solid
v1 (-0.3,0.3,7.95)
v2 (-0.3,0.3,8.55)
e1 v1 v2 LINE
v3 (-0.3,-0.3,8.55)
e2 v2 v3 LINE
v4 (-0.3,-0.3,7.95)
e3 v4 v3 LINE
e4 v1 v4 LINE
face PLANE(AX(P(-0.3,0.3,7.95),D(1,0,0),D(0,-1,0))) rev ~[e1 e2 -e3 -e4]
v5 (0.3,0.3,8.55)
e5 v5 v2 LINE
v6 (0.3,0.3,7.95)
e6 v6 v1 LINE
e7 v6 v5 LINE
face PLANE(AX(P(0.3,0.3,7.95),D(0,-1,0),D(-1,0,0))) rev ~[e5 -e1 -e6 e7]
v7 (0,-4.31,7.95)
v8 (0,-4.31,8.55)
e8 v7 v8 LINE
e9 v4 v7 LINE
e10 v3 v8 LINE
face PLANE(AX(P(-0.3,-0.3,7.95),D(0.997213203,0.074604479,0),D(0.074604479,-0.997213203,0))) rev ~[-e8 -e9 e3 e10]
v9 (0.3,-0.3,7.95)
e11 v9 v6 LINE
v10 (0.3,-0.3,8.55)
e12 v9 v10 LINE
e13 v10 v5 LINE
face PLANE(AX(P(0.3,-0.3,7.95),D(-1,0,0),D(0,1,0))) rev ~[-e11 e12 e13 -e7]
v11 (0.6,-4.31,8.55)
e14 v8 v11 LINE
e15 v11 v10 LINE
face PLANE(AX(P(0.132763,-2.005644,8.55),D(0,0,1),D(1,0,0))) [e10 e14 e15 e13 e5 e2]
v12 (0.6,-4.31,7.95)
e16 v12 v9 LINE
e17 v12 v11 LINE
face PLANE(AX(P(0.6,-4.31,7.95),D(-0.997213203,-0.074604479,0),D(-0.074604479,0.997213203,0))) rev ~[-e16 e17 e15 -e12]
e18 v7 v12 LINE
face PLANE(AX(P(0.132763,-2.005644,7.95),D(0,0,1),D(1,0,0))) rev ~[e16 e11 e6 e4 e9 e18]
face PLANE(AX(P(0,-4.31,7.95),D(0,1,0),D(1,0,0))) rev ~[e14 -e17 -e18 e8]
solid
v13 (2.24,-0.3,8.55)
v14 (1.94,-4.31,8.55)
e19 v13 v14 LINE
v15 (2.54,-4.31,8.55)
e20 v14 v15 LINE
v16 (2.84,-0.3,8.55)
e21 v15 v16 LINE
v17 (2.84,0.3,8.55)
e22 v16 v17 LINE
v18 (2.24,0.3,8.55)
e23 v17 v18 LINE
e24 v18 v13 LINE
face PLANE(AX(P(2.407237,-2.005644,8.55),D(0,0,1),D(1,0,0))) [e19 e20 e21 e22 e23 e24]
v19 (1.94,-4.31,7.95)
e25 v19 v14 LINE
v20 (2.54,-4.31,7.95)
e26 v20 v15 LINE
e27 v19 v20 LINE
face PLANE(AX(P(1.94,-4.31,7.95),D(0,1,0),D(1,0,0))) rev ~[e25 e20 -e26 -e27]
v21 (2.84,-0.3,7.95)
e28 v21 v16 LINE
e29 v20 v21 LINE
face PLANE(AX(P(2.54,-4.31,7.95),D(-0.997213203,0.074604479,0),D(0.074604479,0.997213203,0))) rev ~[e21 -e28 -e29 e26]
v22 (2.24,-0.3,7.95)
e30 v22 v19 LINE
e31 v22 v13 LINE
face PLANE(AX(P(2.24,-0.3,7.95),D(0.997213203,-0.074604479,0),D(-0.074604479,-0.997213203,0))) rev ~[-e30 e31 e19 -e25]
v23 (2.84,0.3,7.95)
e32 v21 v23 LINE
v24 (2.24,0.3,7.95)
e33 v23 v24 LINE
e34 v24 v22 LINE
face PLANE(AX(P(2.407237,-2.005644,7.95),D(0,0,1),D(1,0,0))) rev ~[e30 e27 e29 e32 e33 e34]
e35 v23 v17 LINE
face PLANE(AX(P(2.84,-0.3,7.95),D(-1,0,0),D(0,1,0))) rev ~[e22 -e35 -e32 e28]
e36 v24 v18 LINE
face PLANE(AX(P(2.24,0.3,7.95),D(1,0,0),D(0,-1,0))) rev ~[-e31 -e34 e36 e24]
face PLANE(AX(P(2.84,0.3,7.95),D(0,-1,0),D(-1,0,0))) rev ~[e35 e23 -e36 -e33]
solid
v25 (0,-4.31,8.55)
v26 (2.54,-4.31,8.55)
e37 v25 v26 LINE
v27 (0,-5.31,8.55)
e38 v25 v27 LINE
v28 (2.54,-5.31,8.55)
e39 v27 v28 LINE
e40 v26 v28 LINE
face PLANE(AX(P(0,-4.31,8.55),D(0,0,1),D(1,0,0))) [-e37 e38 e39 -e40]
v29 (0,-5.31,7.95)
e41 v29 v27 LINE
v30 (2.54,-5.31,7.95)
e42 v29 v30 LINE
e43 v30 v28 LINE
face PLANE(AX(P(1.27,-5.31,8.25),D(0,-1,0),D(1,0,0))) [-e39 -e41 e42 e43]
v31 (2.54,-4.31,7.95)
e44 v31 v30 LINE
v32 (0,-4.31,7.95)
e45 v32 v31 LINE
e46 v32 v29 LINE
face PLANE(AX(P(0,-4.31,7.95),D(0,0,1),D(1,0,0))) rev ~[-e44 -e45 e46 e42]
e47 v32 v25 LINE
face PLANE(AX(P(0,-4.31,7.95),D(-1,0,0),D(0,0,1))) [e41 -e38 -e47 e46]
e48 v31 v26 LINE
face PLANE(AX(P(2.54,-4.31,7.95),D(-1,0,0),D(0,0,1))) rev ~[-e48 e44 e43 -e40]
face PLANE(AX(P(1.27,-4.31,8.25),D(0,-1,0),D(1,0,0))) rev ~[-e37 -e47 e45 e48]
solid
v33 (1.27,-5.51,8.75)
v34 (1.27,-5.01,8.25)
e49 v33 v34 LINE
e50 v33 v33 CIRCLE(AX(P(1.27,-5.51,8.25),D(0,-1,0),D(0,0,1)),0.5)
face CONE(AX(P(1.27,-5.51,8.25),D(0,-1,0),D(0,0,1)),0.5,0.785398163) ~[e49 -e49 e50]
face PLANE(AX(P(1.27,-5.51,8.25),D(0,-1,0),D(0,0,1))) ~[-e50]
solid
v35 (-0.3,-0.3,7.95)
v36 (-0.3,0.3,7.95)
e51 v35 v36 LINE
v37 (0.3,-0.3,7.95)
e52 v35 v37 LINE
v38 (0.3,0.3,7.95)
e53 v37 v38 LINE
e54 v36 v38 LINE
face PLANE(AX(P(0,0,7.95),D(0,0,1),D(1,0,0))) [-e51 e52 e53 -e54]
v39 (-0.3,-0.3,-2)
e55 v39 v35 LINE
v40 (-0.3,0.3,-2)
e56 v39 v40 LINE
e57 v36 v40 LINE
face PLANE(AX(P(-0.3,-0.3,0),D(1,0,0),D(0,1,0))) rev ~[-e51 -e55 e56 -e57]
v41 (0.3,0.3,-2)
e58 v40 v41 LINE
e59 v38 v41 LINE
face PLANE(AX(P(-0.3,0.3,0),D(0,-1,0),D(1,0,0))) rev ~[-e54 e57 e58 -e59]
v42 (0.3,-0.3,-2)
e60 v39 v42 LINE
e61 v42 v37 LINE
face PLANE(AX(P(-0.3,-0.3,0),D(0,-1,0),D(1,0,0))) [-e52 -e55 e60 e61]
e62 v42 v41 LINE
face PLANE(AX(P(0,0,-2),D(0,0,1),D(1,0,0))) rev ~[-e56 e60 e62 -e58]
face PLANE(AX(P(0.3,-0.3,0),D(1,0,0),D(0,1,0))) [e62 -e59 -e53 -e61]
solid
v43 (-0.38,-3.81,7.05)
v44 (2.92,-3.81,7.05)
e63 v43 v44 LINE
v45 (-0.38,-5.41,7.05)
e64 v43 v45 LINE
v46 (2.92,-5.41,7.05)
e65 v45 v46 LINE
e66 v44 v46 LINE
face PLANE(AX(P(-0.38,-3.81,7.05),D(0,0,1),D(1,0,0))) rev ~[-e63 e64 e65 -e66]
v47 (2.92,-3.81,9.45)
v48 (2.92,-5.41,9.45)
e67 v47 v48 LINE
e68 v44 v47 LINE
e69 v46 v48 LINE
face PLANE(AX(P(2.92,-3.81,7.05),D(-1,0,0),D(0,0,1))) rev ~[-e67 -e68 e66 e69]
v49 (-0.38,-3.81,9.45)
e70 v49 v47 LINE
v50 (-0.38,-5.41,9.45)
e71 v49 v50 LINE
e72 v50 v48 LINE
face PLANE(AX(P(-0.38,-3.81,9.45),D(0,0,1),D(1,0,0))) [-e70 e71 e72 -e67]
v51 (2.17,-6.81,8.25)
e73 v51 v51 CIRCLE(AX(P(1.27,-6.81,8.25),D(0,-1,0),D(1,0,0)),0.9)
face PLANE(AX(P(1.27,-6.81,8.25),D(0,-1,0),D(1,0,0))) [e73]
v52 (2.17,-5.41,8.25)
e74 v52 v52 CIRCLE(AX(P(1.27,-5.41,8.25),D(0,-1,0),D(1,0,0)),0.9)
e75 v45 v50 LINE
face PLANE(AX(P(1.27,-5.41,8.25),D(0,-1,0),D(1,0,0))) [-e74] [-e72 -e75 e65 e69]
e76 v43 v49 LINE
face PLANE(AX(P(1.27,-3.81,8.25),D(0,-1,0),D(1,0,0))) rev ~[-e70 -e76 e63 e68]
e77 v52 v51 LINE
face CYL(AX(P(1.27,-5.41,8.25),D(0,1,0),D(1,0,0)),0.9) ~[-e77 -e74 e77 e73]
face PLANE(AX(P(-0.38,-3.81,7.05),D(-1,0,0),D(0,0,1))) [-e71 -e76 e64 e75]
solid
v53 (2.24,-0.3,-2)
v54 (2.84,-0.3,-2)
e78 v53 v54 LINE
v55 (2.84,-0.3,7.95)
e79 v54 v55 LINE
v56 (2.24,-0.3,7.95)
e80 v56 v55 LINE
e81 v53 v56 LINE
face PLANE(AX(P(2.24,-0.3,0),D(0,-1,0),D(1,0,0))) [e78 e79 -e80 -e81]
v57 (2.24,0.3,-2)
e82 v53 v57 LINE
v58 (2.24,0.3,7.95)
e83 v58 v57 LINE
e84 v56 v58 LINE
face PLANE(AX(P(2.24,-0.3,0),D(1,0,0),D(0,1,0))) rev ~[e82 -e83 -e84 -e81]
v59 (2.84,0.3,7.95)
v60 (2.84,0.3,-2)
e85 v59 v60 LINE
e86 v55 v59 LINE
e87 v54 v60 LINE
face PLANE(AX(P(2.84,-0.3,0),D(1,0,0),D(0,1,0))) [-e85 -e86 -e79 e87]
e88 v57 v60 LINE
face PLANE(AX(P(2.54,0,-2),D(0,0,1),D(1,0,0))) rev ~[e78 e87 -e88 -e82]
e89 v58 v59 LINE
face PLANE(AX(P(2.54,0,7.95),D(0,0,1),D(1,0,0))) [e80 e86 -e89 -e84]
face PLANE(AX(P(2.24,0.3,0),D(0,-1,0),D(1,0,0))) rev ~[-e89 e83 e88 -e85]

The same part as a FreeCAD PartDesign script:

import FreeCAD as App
import Part
import Sketcher

doc = App.newDocument("Part")
params = doc.addObject("Spreadsheet::Sheet", "Params")
for row, (alias, value) in enumerate([
    ("sketch1_width", "0.6 mm"),
    ("pad1_length", "7.95 mm"),
    ("pad1_length2", "2 mm"),
    ("sketch2_width", "0.6 mm"),
    ("pad2_length", "0.6 mm"),
    ("sketch3_height", "0.6 mm"),
    ("sketch3_width", "2.54 mm"),
    ("pad3_length", "1 mm"),
    ("sketch4_width", "0.5 mm"),
    ("revolution_angle", "360 deg"),
    ("sketch5_width", "3.3 mm"),
    ("sketch5_height", "2.4 mm"),
    ("pad4_length", "1.6 mm"),
    ("sketch6_diameter", "1.8 mm"),
    ("pad5_length", "1.4 mm"),
], start=1):
    params.set(f"A{row}", alias)
    params.set(f"B{row}", "=" + value)
    params.setAlias(f"B{row}", alias)

body = doc.addObject("PartDesign::Body", "Body")
body.AllowCompound = True

# Sketch on XY plane
sketch1 = body.newObject("Sketcher::SketchObject", "Sketch")
sketch1.AttachmentSupport = (doc.getObject("XY_Plane"), [""])
sketch1.MapMode = "FlatFace"
sketch1.addGeometry(Part.LineSegment(App.Vector(-0.3, 0.3, 0), App.Vector(-0.3, -0.3, 0)), False)
sketch1.addGeometry(Part.LineSegment(App.Vector(-0.3, -0.3, 0), App.Vector(0.3, -0.3, 0)), False)
sketch1.addGeometry(Part.LineSegment(App.Vector(0.3, -0.3, 0), App.Vector(0.3, 0.3, 0)), False)
sketch1.addGeometry(Part.LineSegment(App.Vector(0.3, 0.3, 0), App.Vector(-0.3, 0.3, 0)), False)
sketch1.addGeometry(Part.LineSegment(App.Vector(2.24, 0.3, 0), App.Vector(2.24, -0.3, 0)), False)
sketch1.addGeometry(Part.LineSegment(App.Vector(2.24, -0.3, 0), App.Vector(2.84, -0.3, 0)), False)
sketch1.addGeometry(Part.LineSegment(App.Vector(2.84, -0.3, 0), App.Vector(2.84, 0.3, 0)), False)
sketch1.addGeometry(Part.LineSegment(App.Vector(2.84, 0.3, 0), App.Vector(2.24, 0.3, 0)), False)
sketch1.addConstraint(Sketcher.Constraint("Coincident", 0, 2, 1, 1))
sketch1.addConstraint(Sketcher.Constraint("Coincident", 1, 2, 2, 1))
sketch1.addConstraint(Sketcher.Constraint("Coincident", 2, 2, 3, 1))
sketch1.addConstraint(Sketcher.Constraint("Coincident", 3, 2, 0, 1))
sketch1.addConstraint(Sketcher.Constraint("Coincident", 4, 2, 5, 1))
sketch1.addConstraint(Sketcher.Constraint("Coincident", 5, 2, 6, 1))
sketch1.addConstraint(Sketcher.Constraint("Coincident", 6, 2, 7, 1))
sketch1.addConstraint(Sketcher.Constraint("Coincident", 7, 2, 4, 1))
sketch1.addConstraint(Sketcher.Constraint("Vertical", 0))
sketch1.addConstraint(Sketcher.Constraint("Horizontal", 1))
sketch1.addConstraint(Sketcher.Constraint("Vertical", 2))
sketch1.addConstraint(Sketcher.Constraint("Horizontal", 3))
sketch1.addConstraint(Sketcher.Constraint("Vertical", 4))
sketch1.addConstraint(Sketcher.Constraint("Horizontal", 5))
sketch1.addConstraint(Sketcher.Constraint("Vertical", 6))
sketch1.addConstraint(Sketcher.Constraint("Horizontal", 7))
sketch1.addConstraint(Sketcher.Constraint("Symmetric", 0, 2, 2, 2, -1, 1))
sketch1.addConstraint(Sketcher.Constraint("Horizontal", 1, 2, 4, 2))
sketch1.addConstraint(Sketcher.Constraint("Horizontal", 3, 2, 6, 2))
sketch1.addConstraint(Sketcher.Constraint("Equal", 3, 5))
sketch1.addConstraint(Sketcher.Constraint("Equal", 7, 0))
sketch1.addConstraint(Sketcher.Constraint("DistanceX", 1, 1, 1, 2, 0.6))
sketch1.addConstraint(Sketcher.Constraint("DistanceX", -1, 1, 4, 2, 2.24))
sketch1.setExpression("Constraints[21]", "Params.sketch1_width")
pad1 = body.newObject("PartDesign::Pad", "Pad")
pad1.Profile = sketch1
pad1.Type = "TwoLengths"
pad1.setExpression("Length", "Params.pad1_length")
pad1.setExpression("Length2", "Params.pad1_length2")
body2 = doc.addObject("PartDesign::Body", "Body001")
body2.AllowCompound = True

# Sketch on XY plane
sketch2 = body2.newObject("Sketcher::SketchObject", "Sketch001")
sketch2.AttachmentSupport = (doc.getObject("XY_Plane001"), [""])
sketch2.MapMode = "FlatFace"
sketch2.AttachmentOffset = App.Placement(App.Vector(0, 0, 7.95), App.Rotation())
sketch2.addGeometry(Part.LineSegment(App.Vector(0.3, 0.3, 0), App.Vector(-0.3, 0.3, 0)), False)
sketch2.addGeometry(Part.LineSegment(App.Vector(-0.3, 0.3, 0), App.Vector(-0.3, -0.3, 0)), False)
sketch2.addGeometry(Part.LineSegment(App.Vector(-0.3, -0.3, 0), App.Vector(0, -4.31, 0)), False)
sketch2.addGeometry(Part.LineSegment(App.Vector(0, -4.31, 0), App.Vector(0.6, -4.31, 0)), False)
sketch2.addGeometry(Part.LineSegment(App.Vector(0.6, -4.31, 0), App.Vector(0.3, -0.3, 0)), False)
sketch2.addGeometry(Part.LineSegment(App.Vector(0.3, -0.3, 0), App.Vector(0.3, 0.3, 0)), False)
sketch2.addGeometry(Part.LineSegment(App.Vector(2.84, 0.3, 0), App.Vector(2.24, 0.3, 0)), False)
sketch2.addGeometry(Part.LineSegment(App.Vector(2.24, 0.3, 0), App.Vector(2.24, -0.3, 0)), False)
sketch2.addGeometry(Part.LineSegment(App.Vector(2.24, -0.3, 0), App.Vector(1.94, -4.31, 0)), False)
sketch2.addGeometry(Part.LineSegment(App.Vector(1.94, -4.31, 0), App.Vector(2.54, -4.31, 0)), False)
sketch2.addGeometry(Part.LineSegment(App.Vector(2.54, -4.31, 0), App.Vector(2.84, -0.3, 0)), False)
sketch2.addGeometry(Part.LineSegment(App.Vector(2.84, -0.3, 0), App.Vector(2.84, 0.3, 0)), False)
sketch2.addConstraint(Sketcher.Constraint("Coincident", 0, 2, 1, 1))
sketch2.addConstraint(Sketcher.Constraint("Coincident", 1, 2, 2, 1))
sketch2.addConstraint(Sketcher.Constraint("Coincident", 2, 2, 3, 1))
sketch2.addConstraint(Sketcher.Constraint("Coincident", 3, 2, 4, 1))
sketch2.addConstraint(Sketcher.Constraint("Coincident", 4, 2, 5, 1))
sketch2.addConstraint(Sketcher.Constraint("Coincident", 5, 2, 0, 1))
sketch2.addConstraint(Sketcher.Constraint("Coincident", 6, 2, 7, 1))
sketch2.addConstraint(Sketcher.Constraint("Coincident", 7, 2, 8, 1))
sketch2.addConstraint(Sketcher.Constraint("Coincident", 8, 2, 9, 1))
sketch2.addConstraint(Sketcher.Constraint("Coincident", 9, 2, 10, 1))
sketch2.addConstraint(Sketcher.Constraint("Coincident", 10, 2, 11, 1))
sketch2.addConstraint(Sketcher.Constraint("Coincident", 11, 2, 6, 1))
sketch2.addConstraint(Sketcher.Constraint("Horizontal", 0))
sketch2.addConstraint(Sketcher.Constraint("Vertical", 1))
sketch2.addConstraint(Sketcher.Constraint("Horizontal", 3))
sketch2.addConstraint(Sketcher.Constraint("Vertical", 5))
sketch2.addConstraint(Sketcher.Constraint("Horizontal", 6))
sketch2.addConstraint(Sketcher.Constraint("Vertical", 7))
sketch2.addConstraint(Sketcher.Constraint("Horizontal", 9))
sketch2.addConstraint(Sketcher.Constraint("Vertical", 11))
sketch2.addConstraint(Sketcher.Constraint("Symmetric", 0, 2, 4, 2, -1, 1))
sketch2.addConstraint(Sketcher.Constraint("PointOnObject", 2, 2, -2))
sketch2.addConstraint(Sketcher.Constraint("Parallel", 2, 4))
sketch2.addConstraint(Sketcher.Constraint("Parallel", 8, 10))
sketch2.addConstraint(Sketcher.Constraint("Horizontal", 1, 2, 4, 2))
sketch2.addConstraint(Sketcher.Constraint("Horizontal", 5, 2, 6, 2))
sketch2.addConstraint(Sketcher.Constraint("Horizontal", 4, 2, 7, 2))
sketch2.addConstraint(Sketcher.Constraint("Horizontal", 3, 2, 8, 2))
sketch2.addConstraint(Sketcher.Constraint("Horizontal", 7, 2, 10, 2))
sketch2.addConstraint(Sketcher.Constraint("Equal", 3, 6))
sketch2.addConstraint(Sketcher.Constraint("Equal", 9, 1))
sketch2.addConstraint(Sketcher.Constraint("Equal", 4, 8))
sketch2.addConstraint(Sketcher.Constraint("DistanceX", 0, 2, 0, 1, 0.6))
sketch2.addConstraint(Sketcher.Constraint("DistanceY", 2, 2, -1, 1, 4.31))
sketch2.addConstraint(Sketcher.Constraint("DistanceX", -1, 1, 6, 2, 2.24))
sketch2.setExpression("Constraints[32]", "Params.sketch2_width")
pad2 = body2.newObject("PartDesign::Pad", "Pad001")
pad2.Profile = sketch2
pad2.setExpression("Length", "Params.pad2_length")
body3 = doc.addObject("PartDesign::Body", "Body002")

# Sketch on XZ plane
sketch3 = body3.newObject("Sketcher::SketchObject", "Sketch002")
sketch3.AttachmentSupport = (doc.getObject("XZ_Plane002"), [""])
sketch3.MapMode = "FlatFace"
sketch3.AttachmentOffset = App.Placement(App.Vector(0, 0, 4.31), App.Rotation())
sketch3.addGeometry(Part.LineSegment(App.Vector(0, 8.55, 0), App.Vector(0, 7.95, 0)), False)
sketch3.addGeometry(Part.LineSegment(App.Vector(0, 7.95, 0), App.Vector(2.54, 7.95, 0)), False)
sketch3.addGeometry(Part.LineSegment(App.Vector(2.54, 7.95, 0), App.Vector(2.54, 8.55, 0)), False)
sketch3.addGeometry(Part.LineSegment(App.Vector(2.54, 8.55, 0), App.Vector(0, 8.55, 0)), False)
sketch3.addConstraint(Sketcher.Constraint("Coincident", 0, 2, 1, 1))
sketch3.addConstraint(Sketcher.Constraint("Coincident", 1, 2, 2, 1))
sketch3.addConstraint(Sketcher.Constraint("Coincident", 2, 2, 3, 1))
sketch3.addConstraint(Sketcher.Constraint("Coincident", 3, 2, 0, 1))
sketch3.addConstraint(Sketcher.Constraint("Vertical", 0))
sketch3.addConstraint(Sketcher.Constraint("Horizontal", 1))
sketch3.addConstraint(Sketcher.Constraint("Vertical", 2))
sketch3.addConstraint(Sketcher.Constraint("Horizontal", 3))
sketch3.addConstraint(Sketcher.Constraint("PointOnObject", 0, 2, -2))
sketch3.addConstraint(Sketcher.Constraint("DistanceY", 0, 2, 0, 1, 0.6))
sketch3.addConstraint(Sketcher.Constraint("DistanceX", 1, 1, 1, 2, 2.54))
sketch3.addConstraint(Sketcher.Constraint("DistanceY", -1, 1, 0, 2, 7.95))
sketch3.setExpression("Constraints[9]", "Params.sketch3_height")
sketch3.setExpression("Constraints[10]", "Params.sketch3_width")
pad3 = body3.newObject("PartDesign::Pad", "Pad002")
pad3.Profile = sketch3
pad3.setExpression("Length", "Params.pad3_length")
body4 = doc.addObject("PartDesign::Body", "Body003")

# Sketch on YZ plane
sketch4 = body4.newObject("Sketcher::SketchObject", "Sketch003")
sketch4.AttachmentSupport = (doc.getObject("YZ_Plane003"), [""])
sketch4.MapMode = "FlatFace"
sketch4.AttachmentOffset = App.Placement(App.Vector(0, 0, 1.27), App.Rotation())
sketch4.addGeometry(Part.LineSegment(App.Vector(-5.51, 8.25, 0), App.Vector(-5.01, 8.25, 0)), False)
sketch4.addGeometry(Part.LineSegment(App.Vector(-5.01, 8.25, 0), App.Vector(-5.51, 8.75, 0)), False)
sketch4.addGeometry(Part.LineSegment(App.Vector(-5.51, 8.75, 0), App.Vector(-5.51, 8.25, 0)), False)
sketch4.addGeometry(Part.LineSegment(App.Vector(-5.01, 8.25, 0), App.Vector(-5.51, 8.25, 0)), True)  # axis
sketch4.addConstraint(Sketcher.Constraint("Coincident", 0, 2, 1, 1))
sketch4.addConstraint(Sketcher.Constraint("Coincident", 1, 2, 2, 1))
sketch4.addConstraint(Sketcher.Constraint("Coincident", 2, 2, 0, 1))
sketch4.addConstraint(Sketcher.Constraint("Horizontal", 0))
sketch4.addConstraint(Sketcher.Constraint("Vertical", 2))
sketch4.addConstraint(Sketcher.Constraint("Horizontal", 3))
sketch4.addConstraint(Sketcher.Constraint("Coincident", 3, 1, 0, 2))
sketch4.addConstraint(Sketcher.Constraint("Vertical", 1, 2, 3, 2))
sketch4.addConstraint(Sketcher.Constraint("Equal", 3, 2))
sketch4.addConstraint(Sketcher.Constraint("DistanceX", 0, 1, 0, 2, 0.5))
sketch4.addConstraint(Sketcher.Constraint("DistanceX", 0, 2, -1, 1, 5.01))
sketch4.addConstraint(Sketcher.Constraint("DistanceY", -1, 1, 0, 2, 8.25))
sketch4.setExpression("Constraints[9]", "Params.sketch4_width")
revolution = body4.newObject("PartDesign::Revolution", "Revolution")
revolution.Profile = sketch4
revolution.ReferenceAxis = (sketch4, ["Axis0"])
revolution.setExpression("Angle", "Params.revolution_angle")
body5 = doc.addObject("PartDesign::Body", "Body004")

# Sketch on XZ plane
sketch5 = body5.newObject("Sketcher::SketchObject", "Sketch004")
sketch5.AttachmentSupport = (doc.getObject("XZ_Plane004"), [""])
sketch5.MapMode = "FlatFace"
sketch5.AttachmentOffset = App.Placement(App.Vector(0, 0, 3.81), App.Rotation())
sketch5.addGeometry(Part.LineSegment(App.Vector(-0.38, 9.45, 0), App.Vector(-0.38, 7.05, 0)), False)
sketch5.addGeometry(Part.LineSegment(App.Vector(-0.38, 7.05, 0), App.Vector(2.92, 7.05, 0)), False)
sketch5.addGeometry(Part.LineSegment(App.Vector(2.92, 7.05, 0), App.Vector(2.92, 9.45, 0)), False)
sketch5.addGeometry(Part.LineSegment(App.Vector(2.92, 9.45, 0), App.Vector(-0.38, 9.45, 0)), False)
sketch5.addConstraint(Sketcher.Constraint("Coincident", 0, 2, 1, 1))
sketch5.addConstraint(Sketcher.Constraint("Coincident", 1, 2, 2, 1))
sketch5.addConstraint(Sketcher.Constraint("Coincident", 2, 2, 3, 1))
sketch5.addConstraint(Sketcher.Constraint("Coincident", 3, 2, 0, 1))
sketch5.addConstraint(Sketcher.Constraint("Vertical", 0))
sketch5.addConstraint(Sketcher.Constraint("Horizontal", 1))
sketch5.addConstraint(Sketcher.Constraint("Vertical", 2))
sketch5.addConstraint(Sketcher.Constraint("Horizontal", 3))
sketch5.addConstraint(Sketcher.Constraint("DistanceX", 1, 1, 1, 2, 3.3))
sketch5.addConstraint(Sketcher.Constraint("DistanceY", 0, 2, 0, 1, 2.4))
sketch5.addConstraint(Sketcher.Constraint("DistanceX", 0, 2, -1, 1, 0.38))
sketch5.addConstraint(Sketcher.Constraint("DistanceY", -1, 1, 0, 2, 7.05))
sketch5.setExpression("Constraints[8]", "Params.sketch5_width")
sketch5.setExpression("Constraints[9]", "Params.sketch5_height")
pad4 = body5.newObject("PartDesign::Pad", "Pad003")
pad4.Profile = sketch5
pad4.setExpression("Length", "Params.pad4_length")

# Sketch on XZ plane
sketch6 = body5.newObject("Sketcher::SketchObject", "Sketch005")
sketch6.AttachmentSupport = (doc.getObject("XZ_Plane004"), [""])
sketch6.MapMode = "FlatFace"
sketch6.AttachmentOffset = App.Placement(App.Vector(0, 0, 5.41), App.Rotation())
sketch6.addGeometry(Part.Circle(App.Vector(1.27, 8.25, 0), App.Vector(0, 0, 1), 0.9), False)
sketch6.addConstraint(Sketcher.Constraint("Diameter", 0, 1.8))
sketch6.addConstraint(Sketcher.Constraint("DistanceX", -1, 1, 0, 3, 1.27))
sketch6.addConstraint(Sketcher.Constraint("DistanceY", -1, 1, 0, 3, 8.25))
sketch6.setExpression("Constraints[0]", "Params.sketch6_diameter")
pad5 = body5.newObject("PartDesign::Pad", "Pad004")
pad5.Profile = sketch6
pad5.setExpression("Length", "Params.pad5_length")

doc.recompute()
